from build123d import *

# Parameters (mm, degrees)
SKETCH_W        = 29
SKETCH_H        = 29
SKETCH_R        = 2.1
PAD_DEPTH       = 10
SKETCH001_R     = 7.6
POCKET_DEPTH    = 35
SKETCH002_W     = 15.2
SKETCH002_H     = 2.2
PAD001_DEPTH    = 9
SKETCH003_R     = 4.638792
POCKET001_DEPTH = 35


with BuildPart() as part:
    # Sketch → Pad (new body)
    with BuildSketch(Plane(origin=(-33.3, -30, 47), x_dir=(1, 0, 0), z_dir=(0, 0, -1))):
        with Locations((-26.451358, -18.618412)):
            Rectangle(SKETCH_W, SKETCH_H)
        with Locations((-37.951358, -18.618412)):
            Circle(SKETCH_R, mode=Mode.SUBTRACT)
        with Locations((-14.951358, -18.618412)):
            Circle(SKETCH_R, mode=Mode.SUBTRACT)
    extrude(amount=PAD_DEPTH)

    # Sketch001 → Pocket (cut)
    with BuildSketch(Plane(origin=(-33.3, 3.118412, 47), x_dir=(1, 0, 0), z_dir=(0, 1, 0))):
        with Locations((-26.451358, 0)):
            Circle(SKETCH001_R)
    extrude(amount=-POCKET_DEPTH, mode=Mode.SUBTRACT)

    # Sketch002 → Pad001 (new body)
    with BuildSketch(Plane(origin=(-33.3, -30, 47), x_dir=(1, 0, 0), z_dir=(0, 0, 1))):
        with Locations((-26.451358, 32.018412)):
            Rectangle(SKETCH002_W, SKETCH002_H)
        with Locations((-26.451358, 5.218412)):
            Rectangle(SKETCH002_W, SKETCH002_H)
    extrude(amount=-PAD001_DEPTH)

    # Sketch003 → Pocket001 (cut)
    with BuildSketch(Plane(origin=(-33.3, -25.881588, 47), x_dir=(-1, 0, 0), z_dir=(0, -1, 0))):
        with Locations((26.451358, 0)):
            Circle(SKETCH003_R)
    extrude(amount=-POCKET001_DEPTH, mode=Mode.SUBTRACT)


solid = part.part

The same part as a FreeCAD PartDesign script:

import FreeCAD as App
import Part
import Sketcher

V = App.Vector

doc = App.newDocument("Part")
body = doc.addObject("PartDesign::Body", "Body")

sketch1 = body.newObject("Sketcher::SketchObject", "Sketch")
sketch1.AttachmentSupport = (doc.getObject("XY_Plane"), [""])
sketch1.MapMode = "FlatFace"
sketch1.AttachmentOffset = App.Placement(V(0, 0, 47), App.Rotation())
sketch1.addGeometry([
    Part.LineSegment(V(-74.3, -25.9, 0), V(-74.3, 3.1, 0)),
    Part.LineSegment(V(-74.3, 3.1, 0), V(-45.3, 3.1, 0)),
    Part.LineSegment(V(-45.3, 3.1, 0), V(-45.3, -25.9, 0)),
    Part.LineSegment(V(-45.3, -25.9, 0), V(-74.3, -25.9, 0)),
    Part.Circle(V(-71.3, -11.4, 0), V(0, 0, 1), 2.1),
    Part.Circle(V(-48.3, -11.4, 0), V(0, 0, 1), 2.1),
], False)
sketch1.addConstraint([
    Sketcher.Constraint("Coincident", 0, 2, 1, 1),
    Sketcher.Constraint("Coincident", 1, 2, 2, 1),
    Sketcher.Constraint("Coincident", 2, 2, 3, 1),
    Sketcher.Constraint("Coincident", 3, 2, 0, 1),
    Sketcher.Constraint("Vertical", 0),
    Sketcher.Constraint("Horizontal", 1),
    Sketcher.Constraint("Vertical", 2),
    Sketcher.Constraint("Horizontal", 3),
    Sketcher.Constraint("Equal", 4, 5),
    Sketcher.Constraint("Horizontal", 4, 3, 5, 3),
    Sketcher.Constraint("Equal", 3, 0),
    Sketcher.Constraint("Diameter", 4, 4.2),
    Sketcher.Constraint("DistanceX", 1, 1, 1, 2, 29.0),
    Sketcher.Constraint("DistanceX", 4, 3, 5, 3, 23.0),
    Sketcher.Constraint("DistanceX", 0, 2, 4, 3, 3.0),
    Sketcher.Constraint("DistanceY", 4, 3, 0, 2, 14.5),
    Sketcher.Constraint("DistanceY", 4, 3, -1, 1, 11.381588),
    Sketcher.Constraint("DistanceX", 5, 3, -1, 1, 48.251358),
])
pad1 = body.newObject("PartDesign::Pad", "Pad")
pad1.Profile = sketch1
pad1.Length = 10
pad1.Reversed = True

sketch2 = body.newObject("Sketcher::SketchObject", "Sketch001")
sketch2.AttachmentSupport = (doc.getObject("XZ_Plane"), [""])
sketch2.MapMode = "FlatFace"
sketch2.AttachmentOffset = App.Placement(V(0, 0, -3.118412), App.Rotation())
sketch2.addGeometry(Part.Circle(V(-60, 47, 0), V(0, 0, 1), 8), False)
sketch2.addConstraint([
    Sketcher.Constraint("Diameter", 0, 15.2),
    Sketcher.Constraint("DistanceY", -1, 1, 0, 3, 47.0),
    Sketcher.Constraint("DistanceX", 0, 3, -1, 1, 59.751358),
])
pocket1 = body.newObject("PartDesign::Pocket", "Pocket")
pocket1.Profile = sketch2
pocket1.Length = 35
pocket1.Reversed = True

sketch3 = body.newObject("Sketcher::SketchObject", "Sketch002")
sketch3.AttachmentSupport = (doc.getObject("XY_Plane"), [""])
sketch3.MapMode = "FlatFace"
sketch3.AttachmentOffset = App.Placement(V(0, 0, 47), App.Rotation())
sketch3.addGeometry([
    Part.LineSegment(V(-67.4, 3.1, 0), V(-67.4, 0.9, 0)),
    Part.LineSegment(V(-67.4, 0.9, 0), V(-52.2, 0.9, 0)),
    Part.LineSegment(V(-52.2, 0.9, 0), V(-52.2, 3.1, 0)),
    Part.LineSegment(V(-52.2, 3.1, 0), V(-67.4, 3.1, 0)),
    Part.LineSegment(V(-67.4, -23.7, 0), V(-67.4, -25.9, 0)),
    Part.LineSegment(V(-67.4, -25.9, 0), V(-52.2, -25.9, 0)),
    Part.LineSegment(V(-52.2, -25.9, 0), V(-52.2, -23.7, 0)),
    Part.LineSegment(V(-52.2, -23.7, 0), V(-67.4, -23.7, 0)),
], False)
sketch3.addConstraint([
    Sketcher.Constraint("Coincident", 0, 2, 1, 1),
    Sketcher.Constraint("Coincident", 1, 2, 2, 1),
    Sketcher.Constraint("Coincident", 2, 2, 3, 1),
    Sketcher.Constraint("Coincident", 3, 2, 0, 1),
    Sketcher.Constraint("Coincident", 4, 2, 5, 1),
    Sketcher.Constraint("Coincident", 5, 2, 6, 1),
    Sketcher.Constraint("Coincident", 6, 2, 7, 1),
    Sketcher.Constraint("Coincident", 7, 2, 4, 1),
    Sketcher.Constraint("Vertical", 0),
    Sketcher.Constraint("Horizontal", 1),
    Sketcher.Constraint("Vertical", 2),
    Sketcher.Constraint("Horizontal", 3),
    Sketcher.Constraint("Vertical", 4),
    Sketcher.Constraint("Horizontal", 5),
    Sketcher.Constraint("Vertical", 6),
    Sketcher.Constraint("Horizontal", 7),
    Sketcher.Constraint("Vertical", 3, 2, 4, 2),
    Sketcher.Constraint("Vertical", 2, 2, 5, 2),
    Sketcher.Constraint("Equal", 2, 4),
    Sketcher.Constraint("DistanceX", 1, 1, 1, 2, 15.2),
    Sketcher.Constraint("DistanceY", 0, 2, 0, 1, 2.2),
    Sketcher.Constraint("DistanceY", 4, 2, 3, 2, 29.0),
    Sketcher.Constraint("DistanceX", 0, 2, -1, 1, 67.351358),
    Sketcher.Constraint("DistanceY", 4, 2, -1, 1, 25.881588),
])
pad2 = body.newObject("PartDesign::Pad", "Pad001")
pad2.Profile = sketch3
pad2.Length = 9
pad2.Reversed = True

sketch4 = body.newObject("Sketcher::SketchObject", "Sketch003")
sketch4.AttachmentSupport = (doc.getObject("XZ_Plane"), [""])
sketch4.MapMode = "FlatFace"
sketch4.AttachmentOffset = App.Placement(V(0, 0, 25.881588), App.Rotation())
sketch4.addGeometry(Part.Circle(V(-59.8, 47, 0), V(0, 0, 1), 4.6), False)
sketch4.addConstraint([
    Sketcher.Constraint("DistanceY", -1, 1, 0, 3, 47.0),
    Sketcher.Constraint("Diameter", 0, 9.277584),
    Sketcher.Constraint("DistanceX", 0, 3, -1, 1, 59.751358),
])
pocket2 = body.newObject("PartDesign::Pocket", "Pocket001")
pocket2.Profile = sketch4
pocket2.Length = 35

doc.recompute()
